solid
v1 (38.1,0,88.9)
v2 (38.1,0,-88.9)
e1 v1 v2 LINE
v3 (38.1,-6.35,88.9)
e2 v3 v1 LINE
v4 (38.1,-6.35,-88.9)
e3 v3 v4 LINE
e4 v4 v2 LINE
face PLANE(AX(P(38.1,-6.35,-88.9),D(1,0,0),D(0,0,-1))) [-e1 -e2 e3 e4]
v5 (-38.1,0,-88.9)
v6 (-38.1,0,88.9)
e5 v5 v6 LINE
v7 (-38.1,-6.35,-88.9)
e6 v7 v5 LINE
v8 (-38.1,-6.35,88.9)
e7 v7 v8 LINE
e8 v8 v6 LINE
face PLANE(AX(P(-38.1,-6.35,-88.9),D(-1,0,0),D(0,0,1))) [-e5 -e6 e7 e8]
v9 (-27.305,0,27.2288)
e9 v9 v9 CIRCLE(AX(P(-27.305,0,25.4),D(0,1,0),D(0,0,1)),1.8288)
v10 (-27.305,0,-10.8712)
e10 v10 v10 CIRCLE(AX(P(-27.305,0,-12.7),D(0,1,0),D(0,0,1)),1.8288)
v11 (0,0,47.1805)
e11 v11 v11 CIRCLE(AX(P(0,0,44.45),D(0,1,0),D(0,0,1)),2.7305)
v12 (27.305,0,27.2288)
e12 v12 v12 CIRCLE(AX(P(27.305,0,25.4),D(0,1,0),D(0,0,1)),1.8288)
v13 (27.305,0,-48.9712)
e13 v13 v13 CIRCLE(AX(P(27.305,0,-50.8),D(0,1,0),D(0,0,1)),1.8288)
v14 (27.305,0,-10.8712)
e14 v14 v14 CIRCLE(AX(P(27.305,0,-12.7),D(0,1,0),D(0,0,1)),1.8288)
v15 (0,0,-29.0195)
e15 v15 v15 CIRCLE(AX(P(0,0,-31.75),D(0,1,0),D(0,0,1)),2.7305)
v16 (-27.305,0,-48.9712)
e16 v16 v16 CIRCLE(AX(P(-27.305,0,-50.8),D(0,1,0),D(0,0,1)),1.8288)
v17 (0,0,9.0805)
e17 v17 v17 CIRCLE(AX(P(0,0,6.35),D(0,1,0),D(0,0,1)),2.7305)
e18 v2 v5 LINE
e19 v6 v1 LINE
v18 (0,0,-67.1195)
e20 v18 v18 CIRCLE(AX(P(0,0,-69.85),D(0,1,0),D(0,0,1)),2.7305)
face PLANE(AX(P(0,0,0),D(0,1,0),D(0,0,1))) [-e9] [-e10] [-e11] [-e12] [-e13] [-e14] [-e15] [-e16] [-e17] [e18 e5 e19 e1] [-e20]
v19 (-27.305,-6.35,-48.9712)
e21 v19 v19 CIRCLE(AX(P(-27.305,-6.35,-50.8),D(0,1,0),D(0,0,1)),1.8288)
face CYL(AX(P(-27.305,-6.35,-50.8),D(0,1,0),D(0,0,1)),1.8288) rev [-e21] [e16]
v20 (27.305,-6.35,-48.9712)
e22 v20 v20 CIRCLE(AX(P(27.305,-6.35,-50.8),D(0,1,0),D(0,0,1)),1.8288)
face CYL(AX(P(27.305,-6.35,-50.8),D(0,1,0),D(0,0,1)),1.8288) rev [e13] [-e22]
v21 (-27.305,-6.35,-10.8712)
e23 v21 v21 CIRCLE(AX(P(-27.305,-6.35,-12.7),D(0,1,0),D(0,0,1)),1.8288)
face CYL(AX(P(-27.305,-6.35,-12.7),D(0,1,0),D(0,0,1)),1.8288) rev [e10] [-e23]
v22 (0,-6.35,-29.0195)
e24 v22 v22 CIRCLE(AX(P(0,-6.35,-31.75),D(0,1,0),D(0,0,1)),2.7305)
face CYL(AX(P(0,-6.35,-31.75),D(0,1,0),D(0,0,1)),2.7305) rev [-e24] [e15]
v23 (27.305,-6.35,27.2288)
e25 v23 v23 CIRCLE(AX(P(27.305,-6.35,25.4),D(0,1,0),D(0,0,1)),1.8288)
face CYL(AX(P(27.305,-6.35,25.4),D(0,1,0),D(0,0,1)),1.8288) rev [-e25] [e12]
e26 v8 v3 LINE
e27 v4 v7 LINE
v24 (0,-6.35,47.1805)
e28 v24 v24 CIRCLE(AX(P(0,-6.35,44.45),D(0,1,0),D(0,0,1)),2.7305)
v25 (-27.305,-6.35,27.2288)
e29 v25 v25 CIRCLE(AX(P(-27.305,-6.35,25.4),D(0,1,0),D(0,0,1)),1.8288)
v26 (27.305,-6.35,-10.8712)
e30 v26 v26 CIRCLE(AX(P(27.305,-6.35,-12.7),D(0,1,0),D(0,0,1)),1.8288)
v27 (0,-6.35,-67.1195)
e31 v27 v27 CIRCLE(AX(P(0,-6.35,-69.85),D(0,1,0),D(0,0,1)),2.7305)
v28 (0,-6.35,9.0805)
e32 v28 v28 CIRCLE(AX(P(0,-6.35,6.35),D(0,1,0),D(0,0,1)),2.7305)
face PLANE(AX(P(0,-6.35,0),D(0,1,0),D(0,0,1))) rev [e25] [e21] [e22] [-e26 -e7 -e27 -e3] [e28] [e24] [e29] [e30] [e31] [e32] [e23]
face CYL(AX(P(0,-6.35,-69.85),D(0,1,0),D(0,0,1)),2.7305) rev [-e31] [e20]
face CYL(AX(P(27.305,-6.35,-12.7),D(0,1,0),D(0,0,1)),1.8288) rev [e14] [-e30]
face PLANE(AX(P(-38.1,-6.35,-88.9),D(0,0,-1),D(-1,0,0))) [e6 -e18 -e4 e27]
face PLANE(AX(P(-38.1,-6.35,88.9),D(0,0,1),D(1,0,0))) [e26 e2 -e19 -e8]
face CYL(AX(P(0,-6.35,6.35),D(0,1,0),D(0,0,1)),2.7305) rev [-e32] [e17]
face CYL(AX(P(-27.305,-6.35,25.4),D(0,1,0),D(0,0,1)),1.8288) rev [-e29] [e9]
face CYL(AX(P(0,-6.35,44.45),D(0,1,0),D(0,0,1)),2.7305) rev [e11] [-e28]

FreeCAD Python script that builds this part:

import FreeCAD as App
import Part
import Sketcher
from FreeCAD import Vector
Q = App.Units.Quantity


def add_polygon(sketch, points):
    """Adds a closed chain of lines whose ends are joined by coincident constraints."""
    first, n = sketch.GeometryCount, len(points)
    for a, b in zip(points, points[1:] + points[:1]):
        sketch.addGeometry(Part.LineSegment(App.Vector(*a, 0), App.Vector(*b, 0)), False)
    for i in range(n):
        sketch.addConstraint(Sketcher.Constraint("Coincident", first + i, 2, first + (i + 1) % n, 1))

doc = App.newDocument("Part")
body = doc.addObject("PartDesign::Body", "Body")

# Sketch on XZ plane
sketch1 = body.newObject("Sketcher::SketchObject", "Sketch")
sketch1.AttachmentSupport = (doc.getObject("XZ_Plane"), [""])
sketch1.MapMode = "FlatFace"
add_polygon(sketch1, [(-38.1, -88.9), (-38.1, 88.9), (38.1, 88.9), (38.1, -88.9)])  # lines 0-3
sketch1.addGeometry(Part.Circle(Vector(-27.305, 25.4, 0), Vector(0, 0, 1), 1.8288), False)  # 4
sketch1.addGeometry(Part.Circle(Vector(0, 44.45, 0), Vector(0, 0, 1), 2.7305), False)  # 5
sketch1.addGeometry(Part.Circle(Vector(27.305, 25.4, 0), Vector(0, 0, 1), 1.8288), False)  # 6
sketch1.addGeometry(Part.Circle(Vector(0, 6.35, 0), Vector(0, 0, 1), 2.7305), False)  # 7
sketch1.addGeometry(Part.Circle(Vector(-27.305, -12.7, 0), Vector(0, 0, 1), 1.8288), False)  # 8
sketch1.addGeometry(Part.Circle(Vector(-27.305, -50.8, 0), Vector(0, 0, 1), 1.8288), False)  # 9
sketch1.addGeometry(Part.Circle(Vector(0, -31.75, 0), Vector(0, 0, 1), 2.7305), False)  # 10
sketch1.addGeometry(Part.Circle(Vector(27.305, -12.7, 0), Vector(0, 0, 1), 1.8288), False)  # 11
sketch1.addGeometry(Part.Circle(Vector(0, -69.85, 0), Vector(0, 0, 1), 2.7305), False)  # 12
sketch1.addGeometry(Part.Circle(Vector(27.305, -50.8, 0), Vector(0, 0, 1), 1.8288), False)  # 13
sketch1.addConstraint([
    Sketcher.Constraint("Vertical", 0),
    Sketcher.Constraint("Horizontal", 1),
    Sketcher.Constraint("Vertical", 2),
    Sketcher.Constraint("Horizontal", 3),
    Sketcher.Constraint("Equal", 4, 6),
    Sketcher.Constraint("Equal", 5, 7),
    Sketcher.Constraint("Equal", 6, 8),
    Sketcher.Constraint("Equal", 8, 9),
    Sketcher.Constraint("Equal", 7, 10),
    Sketcher.Constraint("Equal", 9, 11),
    Sketcher.Constraint("Equal", 10, 12),
    Sketcher.Constraint("Equal", 11, 13),
    Sketcher.Constraint("Symmetric", 0, 2, 2, 2, -1, 1),
    Sketcher.Constraint("Symmetric", 4, 3, 6, 3, -2),
    Sketcher.Constraint("Symmetric", 8, 3, 11, 3, -2),
    Sketcher.Constraint("Symmetric", 9, 3, 13, 3, -2),
    Sketcher.Constraint("PointOnObject", 5, 3, -2),
    Sketcher.Constraint("PointOnObject", 7, 3, -2),
    Sketcher.Constraint("PointOnObject", 10, 3, -2),
    Sketcher.Constraint("PointOnObject", 12, 3, -2),
    Sketcher.Constraint("Vertical", 4, 3, 8, 3),
    Sketcher.Constraint("Vertical", 8, 3, 9, 3),
    Sketcher.Constraint("DistanceX", 1, 1, 1, 2, Q("3 in")),
    Sketcher.Constraint("DistanceY", 0, 1, 0, 2, Q("7 in")),
    Sketcher.Constraint("Diameter", 4, Q("0.144 in")),
    Sketcher.Constraint("Diameter", 5, Q("0.215 in")),
    Sketcher.Constraint("DistanceY", -1, 1, 4, 3, Q("1 in")),
    Sketcher.Constraint("DistanceY", 9, 3, -1, 1, Q("2 in")),
    Sketcher.Constraint("DistanceY", 12, 3, 7, 3, Q("3 in")),
    Sketcher.Constraint("DistanceY", 8, 3, 0, 2, Q("4 in")),
    Sketcher.Constraint("DistanceY", 7, 3, 5, 3, Q("1.5 in")),
    Sketcher.Constraint("DistanceY", 10, 3, 7, 3, Q("1.5 in")),
    Sketcher.Constraint("DistanceY", -1, 1, 5, 3, Q("1.75 in")),
    Sketcher.Constraint("DistanceX", 4, 3, 6, 3, Q("2.15 in")),
])
pad1 = body.newObject("PartDesign::Pad", "Pad")
pad1.Profile = sketch1
pad1.Length = Q("0.25 in")

doc.recompute()
